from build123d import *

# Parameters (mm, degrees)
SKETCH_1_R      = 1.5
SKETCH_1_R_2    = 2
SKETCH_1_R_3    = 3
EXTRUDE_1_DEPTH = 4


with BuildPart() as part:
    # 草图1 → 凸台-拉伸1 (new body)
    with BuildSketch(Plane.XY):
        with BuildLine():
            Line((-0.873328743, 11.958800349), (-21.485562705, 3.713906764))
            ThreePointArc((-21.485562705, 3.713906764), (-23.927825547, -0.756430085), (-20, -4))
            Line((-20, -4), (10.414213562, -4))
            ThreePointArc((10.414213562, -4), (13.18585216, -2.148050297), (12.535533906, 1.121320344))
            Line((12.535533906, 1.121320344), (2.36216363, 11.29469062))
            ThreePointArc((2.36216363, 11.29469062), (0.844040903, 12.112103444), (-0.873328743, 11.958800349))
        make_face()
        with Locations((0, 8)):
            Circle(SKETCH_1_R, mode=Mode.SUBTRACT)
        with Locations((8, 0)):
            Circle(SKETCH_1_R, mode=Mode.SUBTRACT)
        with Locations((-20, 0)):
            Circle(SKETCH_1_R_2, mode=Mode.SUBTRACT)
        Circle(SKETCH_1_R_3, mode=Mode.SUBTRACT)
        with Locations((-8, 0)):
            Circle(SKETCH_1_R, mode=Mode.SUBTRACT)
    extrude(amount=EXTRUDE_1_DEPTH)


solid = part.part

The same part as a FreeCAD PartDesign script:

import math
import FreeCAD as App
import Part
import Sketcher

V = App.Vector
Q = App.Units.Quantity

doc = App.newDocument("Part")
body = doc.addObject("PartDesign::Body", "Body")

sketch1 = body.newObject("Sketcher::SketchObject", "Sketch")
sketch1.AttachmentSupport = (doc.getObject("XY_Plane"), [""])
sketch1.MapMode = "FlatFace"
sketch1.addGeometry(Part.LineSegment(V(-0.9, 12, 0), V(-21.5, 3.7, 0)), False)
sketch1.addGeometry(Part.ArcOfCircle(Part.Circle(V(-20, 0, 0), V(0, 0, 1), 4), math.radians(112), math.radians(270)), False)
sketch1.addGeometry(Part.LineSegment(V(-20, -4, 0), V(10.4, -4, 0)), False)
sketch1.addGeometry(Part.ArcOfCircle(Part.Circle(V(10.4, -1, 0), V(0, 0, 1), 3), math.radians(-90), math.radians(45)), False)
sketch1.addGeometry(Part.LineSegment(V(12.5, 1.1, 0), V(2.4, 11.3, 0)), False)
sketch1.addGeometry(Part.ArcOfCircle(Part.Circle(V(0.2, 9.2, 0), V(0, 0, 1), 3), math.radians(45), math.radians(112)), False)
sketch1.addGeometry(Part.Circle(V(-20, 0, 0), V(0, 0, 1), 2), False)
sketch1.addGeometry(Part.Circle(V(-8, 0, 0), V(0, 0, 1), 1.5), False)
sketch1.addGeometry(Part.Circle(V(0, 0, 0), V(0, 0, 1), 3), False)
sketch1.addGeometry(Part.Circle(V(8, 0, 0), V(0, 0, 1), 1.5), False)
sketch1.addGeometry(Part.Circle(V(0, 8, 0), V(0, 0, 1), 1.5), False)
sketch1.addConstraint(Sketcher.Constraint("Tangent", 0, 2, 1, 1))
sketch1.addConstraint(Sketcher.Constraint("Tangent", 1, 2, 2, 1))
sketch1.addConstraint(Sketcher.Constraint("Tangent", 2, 2, 3, 1))
sketch1.addConstraint(Sketcher.Constraint("Tangent", 3, 2, 4, 1))
sketch1.addConstraint(Sketcher.Constraint("Tangent", 4, 2, 5, 1))
sketch1.addConstraint(Sketcher.Constraint("Tangent", 5, 2, 0, 1))
sketch1.addConstraint(Sketcher.Constraint("Horizontal", 2))
sketch1.addConstraint(Sketcher.Constraint("Coincident", 8, 3, -1, 1))
sketch1.addConstraint(Sketcher.Constraint("Coincident", 6, 3, 1, 3))
sketch1.addConstraint(Sketcher.Constraint("Equal", 3, 5))
sketch1.addConstraint(Sketcher.Constraint("Equal", 5, 8))
sketch1.addConstraint(Sketcher.Constraint("Equal", 7, 9))
sketch1.addConstraint(Sketcher.Constraint("Equal", 9, 10))
sketch1.addConstraint(Sketcher.Constraint("Symmetric", 7, 3, 9, 3, -1, 1))
sketch1.addConstraint(Sketcher.Constraint("PointOnObject", 1, 3, -1))
sketch1.addConstraint(Sketcher.Constraint("PointOnObject", 7, 3, -1))
sketch1.addConstraint(Sketcher.Constraint("PointOnObject", 10, 3, -2))
sketch1.addConstraint(Sketcher.Constraint("Diameter", 6, Q("4 mm")))
sketch1.addConstraint(Sketcher.Constraint("Diameter", 7, Q("3 mm")))
sketch1.addConstraint(Sketcher.Constraint("Diameter", 8, Q("6 mm")))
sketch1.addConstraint(Sketcher.Constraint("Radius", 1, Q("4 mm")))
sketch1.addConstraint(Sketcher.Constraint("Angle", 4, Q("135 deg")))
sketch1.addConstraint(Sketcher.Constraint("DistanceX", 1, 3, -1, 1, Q("20 mm")))
sketch1.addConstraint(Sketcher.Constraint("DistanceX", 7, 3, -1, 1, Q("8 mm")))
sketch1.addConstraint(Sketcher.Constraint("DistanceY", -1, 1, 10, 3, Q("8 mm")))
sketch1.addConstraint(Sketcher.Constraint("DistanceY", -1, 1, 5, 2, Q("11.9588 mm")))
sketch1.addConstraint(Sketcher.Constraint("Distance", 4, Q("14.387318 mm")))
pad1 = body.newObject("PartDesign::Pad", "Pad")
pad1.Profile = sketch1
pad1.Length = 4

doc.recompute()
